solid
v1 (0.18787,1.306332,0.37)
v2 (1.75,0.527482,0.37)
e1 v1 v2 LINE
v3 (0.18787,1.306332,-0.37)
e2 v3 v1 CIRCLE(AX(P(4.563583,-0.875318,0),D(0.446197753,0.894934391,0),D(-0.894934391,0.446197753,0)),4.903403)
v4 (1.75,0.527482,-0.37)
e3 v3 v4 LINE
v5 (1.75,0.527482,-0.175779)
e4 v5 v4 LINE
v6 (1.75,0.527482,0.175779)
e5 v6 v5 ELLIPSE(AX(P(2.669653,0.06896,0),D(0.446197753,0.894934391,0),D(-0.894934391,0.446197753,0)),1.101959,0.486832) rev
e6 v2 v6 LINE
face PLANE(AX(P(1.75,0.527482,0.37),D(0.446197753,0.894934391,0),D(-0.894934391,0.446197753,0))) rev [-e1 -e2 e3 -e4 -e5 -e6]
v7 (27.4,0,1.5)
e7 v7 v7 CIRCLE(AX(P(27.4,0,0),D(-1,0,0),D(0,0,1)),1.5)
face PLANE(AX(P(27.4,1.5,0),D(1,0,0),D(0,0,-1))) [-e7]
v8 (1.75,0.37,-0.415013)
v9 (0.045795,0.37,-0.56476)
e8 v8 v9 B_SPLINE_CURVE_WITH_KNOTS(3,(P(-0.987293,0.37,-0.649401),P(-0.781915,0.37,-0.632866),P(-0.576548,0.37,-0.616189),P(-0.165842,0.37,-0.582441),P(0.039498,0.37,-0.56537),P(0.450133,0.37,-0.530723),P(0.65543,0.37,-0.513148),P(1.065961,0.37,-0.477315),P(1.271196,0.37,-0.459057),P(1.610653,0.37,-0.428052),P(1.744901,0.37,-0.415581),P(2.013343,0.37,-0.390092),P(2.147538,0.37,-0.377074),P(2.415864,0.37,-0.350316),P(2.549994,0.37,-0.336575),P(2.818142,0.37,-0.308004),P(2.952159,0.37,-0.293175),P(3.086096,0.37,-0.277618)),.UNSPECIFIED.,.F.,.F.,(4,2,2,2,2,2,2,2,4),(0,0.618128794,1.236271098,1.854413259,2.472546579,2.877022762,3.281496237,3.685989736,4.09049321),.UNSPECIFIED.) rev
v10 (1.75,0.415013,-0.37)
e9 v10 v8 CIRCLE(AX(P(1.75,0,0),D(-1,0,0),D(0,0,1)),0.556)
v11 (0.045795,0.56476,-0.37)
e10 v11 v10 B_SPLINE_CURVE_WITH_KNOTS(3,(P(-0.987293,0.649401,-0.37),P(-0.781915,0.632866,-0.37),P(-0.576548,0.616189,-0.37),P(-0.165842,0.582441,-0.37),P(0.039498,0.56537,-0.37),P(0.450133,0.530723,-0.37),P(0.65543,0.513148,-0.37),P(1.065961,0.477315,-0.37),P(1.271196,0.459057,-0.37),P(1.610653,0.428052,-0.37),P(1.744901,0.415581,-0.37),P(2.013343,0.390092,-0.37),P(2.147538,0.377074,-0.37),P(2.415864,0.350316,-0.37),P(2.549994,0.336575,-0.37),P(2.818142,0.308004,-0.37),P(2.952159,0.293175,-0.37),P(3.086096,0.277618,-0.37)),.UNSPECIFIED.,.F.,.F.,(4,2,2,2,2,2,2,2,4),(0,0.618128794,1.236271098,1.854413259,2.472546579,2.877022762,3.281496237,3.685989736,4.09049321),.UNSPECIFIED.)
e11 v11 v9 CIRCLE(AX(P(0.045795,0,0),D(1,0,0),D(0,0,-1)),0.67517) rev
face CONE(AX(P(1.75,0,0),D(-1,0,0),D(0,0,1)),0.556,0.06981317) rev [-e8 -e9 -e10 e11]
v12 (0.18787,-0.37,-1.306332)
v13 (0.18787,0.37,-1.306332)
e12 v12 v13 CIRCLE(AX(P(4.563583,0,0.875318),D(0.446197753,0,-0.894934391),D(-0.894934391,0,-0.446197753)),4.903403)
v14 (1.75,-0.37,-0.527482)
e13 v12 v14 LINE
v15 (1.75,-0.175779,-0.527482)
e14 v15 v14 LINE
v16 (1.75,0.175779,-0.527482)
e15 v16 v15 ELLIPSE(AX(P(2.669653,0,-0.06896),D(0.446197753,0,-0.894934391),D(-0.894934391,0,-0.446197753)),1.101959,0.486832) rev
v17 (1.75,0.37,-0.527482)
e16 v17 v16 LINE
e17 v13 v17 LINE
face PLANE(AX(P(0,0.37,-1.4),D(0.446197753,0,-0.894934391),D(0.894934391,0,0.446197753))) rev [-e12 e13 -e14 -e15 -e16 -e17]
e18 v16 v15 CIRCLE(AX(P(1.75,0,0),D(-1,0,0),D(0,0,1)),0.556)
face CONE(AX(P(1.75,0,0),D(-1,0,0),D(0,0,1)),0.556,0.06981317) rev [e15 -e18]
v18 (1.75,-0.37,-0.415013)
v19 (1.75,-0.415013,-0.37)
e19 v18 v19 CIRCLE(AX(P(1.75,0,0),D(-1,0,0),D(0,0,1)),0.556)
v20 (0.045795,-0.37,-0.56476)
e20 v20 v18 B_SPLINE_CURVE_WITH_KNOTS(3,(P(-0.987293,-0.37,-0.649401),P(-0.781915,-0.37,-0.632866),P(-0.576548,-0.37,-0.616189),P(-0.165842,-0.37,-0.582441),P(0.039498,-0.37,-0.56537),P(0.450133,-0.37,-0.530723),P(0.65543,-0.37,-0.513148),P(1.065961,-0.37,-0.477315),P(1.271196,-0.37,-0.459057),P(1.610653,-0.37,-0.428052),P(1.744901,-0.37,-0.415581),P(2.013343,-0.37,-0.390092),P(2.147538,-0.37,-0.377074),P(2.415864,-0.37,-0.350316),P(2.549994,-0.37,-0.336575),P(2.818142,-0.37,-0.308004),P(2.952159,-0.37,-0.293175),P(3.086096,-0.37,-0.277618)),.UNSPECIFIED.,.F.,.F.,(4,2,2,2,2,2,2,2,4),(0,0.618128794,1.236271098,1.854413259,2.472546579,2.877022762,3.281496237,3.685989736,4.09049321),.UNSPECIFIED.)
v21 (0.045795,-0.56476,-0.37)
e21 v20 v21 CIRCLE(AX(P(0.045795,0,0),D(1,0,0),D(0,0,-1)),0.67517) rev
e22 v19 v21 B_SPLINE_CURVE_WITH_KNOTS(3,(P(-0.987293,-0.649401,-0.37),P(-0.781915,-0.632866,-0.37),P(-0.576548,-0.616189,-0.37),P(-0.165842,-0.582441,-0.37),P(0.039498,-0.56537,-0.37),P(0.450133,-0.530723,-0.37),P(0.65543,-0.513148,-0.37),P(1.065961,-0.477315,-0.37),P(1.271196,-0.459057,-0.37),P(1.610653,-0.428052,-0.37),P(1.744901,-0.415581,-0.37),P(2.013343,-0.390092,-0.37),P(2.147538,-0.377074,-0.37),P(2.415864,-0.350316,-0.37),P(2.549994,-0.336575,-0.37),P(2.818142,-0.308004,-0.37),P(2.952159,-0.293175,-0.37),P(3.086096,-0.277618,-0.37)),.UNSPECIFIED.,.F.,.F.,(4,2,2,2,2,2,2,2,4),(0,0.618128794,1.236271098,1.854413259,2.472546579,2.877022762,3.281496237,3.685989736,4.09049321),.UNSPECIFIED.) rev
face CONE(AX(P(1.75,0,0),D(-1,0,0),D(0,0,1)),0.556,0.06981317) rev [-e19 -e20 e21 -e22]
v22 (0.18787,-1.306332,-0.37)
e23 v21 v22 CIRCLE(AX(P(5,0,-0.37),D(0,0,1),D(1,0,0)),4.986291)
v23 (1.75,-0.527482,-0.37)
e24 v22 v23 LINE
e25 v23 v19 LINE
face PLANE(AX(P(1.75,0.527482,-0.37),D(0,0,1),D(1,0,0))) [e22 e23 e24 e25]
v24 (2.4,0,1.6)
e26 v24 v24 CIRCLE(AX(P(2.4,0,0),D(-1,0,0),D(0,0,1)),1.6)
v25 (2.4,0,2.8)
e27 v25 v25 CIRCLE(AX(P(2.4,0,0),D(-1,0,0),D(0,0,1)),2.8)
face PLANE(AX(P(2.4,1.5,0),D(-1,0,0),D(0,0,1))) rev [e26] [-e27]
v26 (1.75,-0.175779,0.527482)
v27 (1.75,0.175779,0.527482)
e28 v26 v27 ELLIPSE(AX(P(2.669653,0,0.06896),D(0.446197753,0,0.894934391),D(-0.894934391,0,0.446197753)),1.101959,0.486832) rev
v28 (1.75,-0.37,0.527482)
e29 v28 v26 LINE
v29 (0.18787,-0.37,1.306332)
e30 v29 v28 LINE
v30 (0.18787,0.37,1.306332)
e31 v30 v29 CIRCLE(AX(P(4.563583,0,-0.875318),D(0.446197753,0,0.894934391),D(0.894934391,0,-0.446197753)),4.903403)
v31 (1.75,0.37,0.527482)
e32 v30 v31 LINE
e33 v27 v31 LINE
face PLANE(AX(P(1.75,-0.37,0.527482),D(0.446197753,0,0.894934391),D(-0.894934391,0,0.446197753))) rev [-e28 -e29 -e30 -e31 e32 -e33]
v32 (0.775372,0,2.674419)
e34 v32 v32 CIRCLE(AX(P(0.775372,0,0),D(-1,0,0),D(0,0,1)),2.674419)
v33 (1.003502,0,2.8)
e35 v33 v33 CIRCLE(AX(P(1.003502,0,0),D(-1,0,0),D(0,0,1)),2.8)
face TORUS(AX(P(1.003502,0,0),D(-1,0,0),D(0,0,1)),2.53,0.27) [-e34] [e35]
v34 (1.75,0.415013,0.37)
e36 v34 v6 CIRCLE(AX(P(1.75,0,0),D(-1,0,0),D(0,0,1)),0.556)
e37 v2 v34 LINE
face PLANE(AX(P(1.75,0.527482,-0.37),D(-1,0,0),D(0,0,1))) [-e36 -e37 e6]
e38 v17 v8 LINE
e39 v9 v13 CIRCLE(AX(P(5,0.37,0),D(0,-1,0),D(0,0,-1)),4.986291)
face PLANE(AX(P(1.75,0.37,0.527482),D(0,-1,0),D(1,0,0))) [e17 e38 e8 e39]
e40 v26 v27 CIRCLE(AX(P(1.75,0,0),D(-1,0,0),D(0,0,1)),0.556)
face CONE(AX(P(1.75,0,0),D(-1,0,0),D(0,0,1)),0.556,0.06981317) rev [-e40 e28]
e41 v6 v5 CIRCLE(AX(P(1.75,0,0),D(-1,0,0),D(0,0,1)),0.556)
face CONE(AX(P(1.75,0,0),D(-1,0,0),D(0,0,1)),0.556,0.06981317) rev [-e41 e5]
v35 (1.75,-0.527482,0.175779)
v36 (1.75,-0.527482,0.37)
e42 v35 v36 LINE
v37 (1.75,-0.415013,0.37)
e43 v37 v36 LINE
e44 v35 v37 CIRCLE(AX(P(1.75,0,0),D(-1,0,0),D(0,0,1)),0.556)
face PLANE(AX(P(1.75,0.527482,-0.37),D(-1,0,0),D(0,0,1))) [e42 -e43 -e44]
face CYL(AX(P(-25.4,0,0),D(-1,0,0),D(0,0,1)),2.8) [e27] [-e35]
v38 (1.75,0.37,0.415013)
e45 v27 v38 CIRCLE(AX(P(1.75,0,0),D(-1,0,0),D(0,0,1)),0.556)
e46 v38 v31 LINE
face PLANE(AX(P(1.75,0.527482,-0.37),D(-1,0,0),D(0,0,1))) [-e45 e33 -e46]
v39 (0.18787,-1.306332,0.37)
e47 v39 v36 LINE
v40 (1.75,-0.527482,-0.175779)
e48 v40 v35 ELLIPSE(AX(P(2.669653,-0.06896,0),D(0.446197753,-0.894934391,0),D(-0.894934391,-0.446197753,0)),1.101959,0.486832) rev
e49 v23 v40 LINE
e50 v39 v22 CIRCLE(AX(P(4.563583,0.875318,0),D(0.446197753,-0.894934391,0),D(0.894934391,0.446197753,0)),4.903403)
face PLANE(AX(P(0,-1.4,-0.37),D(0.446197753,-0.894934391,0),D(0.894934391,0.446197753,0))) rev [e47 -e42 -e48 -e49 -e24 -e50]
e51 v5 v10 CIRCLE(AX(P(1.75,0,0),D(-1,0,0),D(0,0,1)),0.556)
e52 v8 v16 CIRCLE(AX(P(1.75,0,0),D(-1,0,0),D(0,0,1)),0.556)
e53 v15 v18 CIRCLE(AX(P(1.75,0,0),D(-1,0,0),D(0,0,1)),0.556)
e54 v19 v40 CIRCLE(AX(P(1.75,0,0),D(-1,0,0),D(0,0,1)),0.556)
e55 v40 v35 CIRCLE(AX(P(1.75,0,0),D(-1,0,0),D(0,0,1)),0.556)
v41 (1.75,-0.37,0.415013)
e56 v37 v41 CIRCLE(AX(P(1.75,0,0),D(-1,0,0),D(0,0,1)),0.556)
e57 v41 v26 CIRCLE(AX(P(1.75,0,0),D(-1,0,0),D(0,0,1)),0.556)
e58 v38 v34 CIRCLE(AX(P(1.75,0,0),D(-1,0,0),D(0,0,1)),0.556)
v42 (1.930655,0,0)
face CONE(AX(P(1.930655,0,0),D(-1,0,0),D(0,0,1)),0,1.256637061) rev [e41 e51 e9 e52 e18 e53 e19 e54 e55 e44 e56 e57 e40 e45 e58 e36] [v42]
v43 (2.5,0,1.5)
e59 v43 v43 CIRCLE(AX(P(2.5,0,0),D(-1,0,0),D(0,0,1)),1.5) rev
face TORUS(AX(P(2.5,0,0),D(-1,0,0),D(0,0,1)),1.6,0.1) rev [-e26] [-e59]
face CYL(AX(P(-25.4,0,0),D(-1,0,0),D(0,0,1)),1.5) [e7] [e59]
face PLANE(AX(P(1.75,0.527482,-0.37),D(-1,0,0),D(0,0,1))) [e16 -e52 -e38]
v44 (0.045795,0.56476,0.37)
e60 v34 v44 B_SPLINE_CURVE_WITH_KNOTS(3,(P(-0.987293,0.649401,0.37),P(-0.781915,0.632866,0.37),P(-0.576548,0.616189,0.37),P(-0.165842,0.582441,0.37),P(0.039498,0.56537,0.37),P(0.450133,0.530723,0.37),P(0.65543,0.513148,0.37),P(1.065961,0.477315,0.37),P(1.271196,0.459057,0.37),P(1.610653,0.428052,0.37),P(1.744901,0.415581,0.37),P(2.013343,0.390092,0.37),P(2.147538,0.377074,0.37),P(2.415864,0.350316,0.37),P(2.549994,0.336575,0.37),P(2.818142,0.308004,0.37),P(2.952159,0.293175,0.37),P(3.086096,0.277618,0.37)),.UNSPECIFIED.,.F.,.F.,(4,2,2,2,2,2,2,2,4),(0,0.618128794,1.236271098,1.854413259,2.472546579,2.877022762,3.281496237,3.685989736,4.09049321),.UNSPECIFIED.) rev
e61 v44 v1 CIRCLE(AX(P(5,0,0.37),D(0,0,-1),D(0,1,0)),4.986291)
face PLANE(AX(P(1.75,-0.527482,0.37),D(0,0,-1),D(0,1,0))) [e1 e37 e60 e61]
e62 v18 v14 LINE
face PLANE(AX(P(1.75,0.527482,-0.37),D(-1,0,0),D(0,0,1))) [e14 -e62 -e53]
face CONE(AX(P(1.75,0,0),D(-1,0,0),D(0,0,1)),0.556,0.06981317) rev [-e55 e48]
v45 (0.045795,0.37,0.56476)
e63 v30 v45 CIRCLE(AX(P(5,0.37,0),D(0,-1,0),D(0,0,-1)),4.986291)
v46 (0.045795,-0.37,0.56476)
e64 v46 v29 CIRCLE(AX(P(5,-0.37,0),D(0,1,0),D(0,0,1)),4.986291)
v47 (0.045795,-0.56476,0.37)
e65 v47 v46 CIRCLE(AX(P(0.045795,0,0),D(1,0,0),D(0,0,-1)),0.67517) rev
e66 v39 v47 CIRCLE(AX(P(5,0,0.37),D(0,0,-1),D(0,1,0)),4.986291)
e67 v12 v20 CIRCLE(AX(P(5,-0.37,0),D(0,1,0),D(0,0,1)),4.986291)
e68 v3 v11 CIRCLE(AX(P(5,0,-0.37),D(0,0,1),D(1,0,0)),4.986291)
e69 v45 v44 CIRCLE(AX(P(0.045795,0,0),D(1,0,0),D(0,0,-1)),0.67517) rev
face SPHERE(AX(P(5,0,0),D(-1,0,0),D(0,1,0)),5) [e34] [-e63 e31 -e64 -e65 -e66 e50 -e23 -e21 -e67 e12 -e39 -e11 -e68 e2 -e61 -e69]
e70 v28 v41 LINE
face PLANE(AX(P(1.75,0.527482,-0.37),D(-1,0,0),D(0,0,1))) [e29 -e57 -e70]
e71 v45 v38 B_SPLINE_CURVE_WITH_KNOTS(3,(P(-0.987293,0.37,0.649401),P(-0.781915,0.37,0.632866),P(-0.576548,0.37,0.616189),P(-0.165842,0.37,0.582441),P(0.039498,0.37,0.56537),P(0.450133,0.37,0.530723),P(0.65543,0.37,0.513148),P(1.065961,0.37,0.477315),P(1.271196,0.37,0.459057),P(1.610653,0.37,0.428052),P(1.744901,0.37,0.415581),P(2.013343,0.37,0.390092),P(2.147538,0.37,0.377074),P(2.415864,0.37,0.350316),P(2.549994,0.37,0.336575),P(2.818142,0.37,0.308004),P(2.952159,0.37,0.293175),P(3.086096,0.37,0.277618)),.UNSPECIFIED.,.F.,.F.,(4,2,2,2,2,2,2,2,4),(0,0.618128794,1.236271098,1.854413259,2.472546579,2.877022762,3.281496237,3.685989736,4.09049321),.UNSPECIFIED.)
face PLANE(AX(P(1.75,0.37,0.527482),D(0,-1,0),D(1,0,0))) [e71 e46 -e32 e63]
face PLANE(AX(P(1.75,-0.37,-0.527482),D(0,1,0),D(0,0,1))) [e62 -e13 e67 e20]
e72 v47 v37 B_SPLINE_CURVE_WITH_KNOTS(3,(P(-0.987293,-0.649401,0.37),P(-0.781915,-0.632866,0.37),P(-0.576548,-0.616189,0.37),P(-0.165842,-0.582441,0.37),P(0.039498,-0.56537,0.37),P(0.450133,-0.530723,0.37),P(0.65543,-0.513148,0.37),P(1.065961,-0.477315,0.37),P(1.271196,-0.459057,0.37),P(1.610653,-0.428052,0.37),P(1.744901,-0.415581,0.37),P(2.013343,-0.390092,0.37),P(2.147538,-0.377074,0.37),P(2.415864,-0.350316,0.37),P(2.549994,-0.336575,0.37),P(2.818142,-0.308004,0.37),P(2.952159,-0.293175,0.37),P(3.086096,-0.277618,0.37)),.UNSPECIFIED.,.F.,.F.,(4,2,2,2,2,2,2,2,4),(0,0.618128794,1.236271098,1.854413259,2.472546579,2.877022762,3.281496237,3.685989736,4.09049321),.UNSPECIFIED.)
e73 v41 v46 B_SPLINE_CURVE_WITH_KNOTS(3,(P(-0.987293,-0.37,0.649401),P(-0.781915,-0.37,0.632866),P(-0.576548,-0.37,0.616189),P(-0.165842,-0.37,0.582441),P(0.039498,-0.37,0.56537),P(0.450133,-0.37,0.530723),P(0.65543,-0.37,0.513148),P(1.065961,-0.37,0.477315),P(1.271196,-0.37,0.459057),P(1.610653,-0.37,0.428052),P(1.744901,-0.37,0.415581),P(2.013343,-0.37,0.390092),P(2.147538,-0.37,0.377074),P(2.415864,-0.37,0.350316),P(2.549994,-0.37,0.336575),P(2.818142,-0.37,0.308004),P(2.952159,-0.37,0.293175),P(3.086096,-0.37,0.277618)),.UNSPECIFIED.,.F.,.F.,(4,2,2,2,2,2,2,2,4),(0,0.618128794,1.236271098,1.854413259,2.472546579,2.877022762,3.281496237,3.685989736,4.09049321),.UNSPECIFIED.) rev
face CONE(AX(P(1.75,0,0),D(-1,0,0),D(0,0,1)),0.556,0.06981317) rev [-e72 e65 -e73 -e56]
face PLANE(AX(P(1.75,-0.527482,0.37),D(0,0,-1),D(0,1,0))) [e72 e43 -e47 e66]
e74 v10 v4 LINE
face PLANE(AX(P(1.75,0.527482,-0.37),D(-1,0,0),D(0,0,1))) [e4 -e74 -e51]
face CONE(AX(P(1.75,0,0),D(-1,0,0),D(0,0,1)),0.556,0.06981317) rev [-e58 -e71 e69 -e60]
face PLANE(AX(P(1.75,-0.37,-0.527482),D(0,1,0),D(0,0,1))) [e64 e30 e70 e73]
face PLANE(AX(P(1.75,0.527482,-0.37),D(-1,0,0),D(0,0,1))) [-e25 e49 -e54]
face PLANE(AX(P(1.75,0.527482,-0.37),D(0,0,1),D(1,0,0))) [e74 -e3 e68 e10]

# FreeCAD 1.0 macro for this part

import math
import FreeCAD as App
import Part
import Sketcher

V = App.Vector
Q = App.Units.Quantity


def edges_at(feature, points):
    """Names of the edges that pass closest to the given points."""
    edges = feature.Shape.Edges
    near = lambda p: min(range(len(edges)), key=lambda i: edges[i].distToShape(Part.Vertex(*p))[0])
    return sorted({f"Edge{near(p) + 1}" for p in points})

doc = App.newDocument("Part")
body = doc.addObject("PartDesign::Body", "Body")

# Sketch on XY plane
sketch1 = doc.addObject("Sketcher::SketchObject", "Sketch")
body.addObject(sketch1)
sketch1.AttachmentSupport = (doc.XY_Plane, [""])
sketch1.MapMode = "FlatFace"
sketch1.addGeometry([
    Part.LineSegment(V(2.4, 1.5, 0), V(2.4, 2.8, 0)),  # 0
    Part.LineSegment(V(2.4, 2.8, 0), V(1, 2.8, 0)),  # 1
    Part.ArcOfCircle(Part.Circle(V(1, 2.53, 0), V(0, 0, 1), 0.27), math.radians(90), math.radians(148)),  # 2
    Part.ArcOfCircle(Part.Circle(V(5, 0, 0), V(0, 0, 1), 5), math.radians(148), math.radians(180)),  # 3
    Part.LineSegment(V(0, 0, 0), V(27.4, 0, 0)),  # 4
    Part.LineSegment(V(27.4, 0, 0), V(27.4, 1.5, 0)),  # 5
    Part.LineSegment(V(27.4, 1.5, 0), V(2.4, 1.5, 0)),  # 6
], False)
sketch1.addConstraint([
    Sketcher.Constraint("Coincident", 0, 2, 1, 1),
    Sketcher.Constraint("Tangent", 1, 2, 2, 1),
    Sketcher.Constraint("Tangent", 2, 2, 3, 1),
    Sketcher.Constraint("Coincident", 3, 2, 4, 1),
    Sketcher.Constraint("Coincident", 4, 2, 5, 1),
    Sketcher.Constraint("Coincident", 5, 2, 6, 1),
    Sketcher.Constraint("Coincident", 6, 2, 0, 1),
    Sketcher.Constraint("Vertical", 0),
    Sketcher.Constraint("Horizontal", 1),
    Sketcher.Constraint("Horizontal", 4),
    Sketcher.Constraint("Vertical", 5),
    Sketcher.Constraint("Horizontal", 6),
    Sketcher.Constraint("Coincident", 3, 2, -1, 1),
    Sketcher.Constraint("PointOnObject", 3, 3, -1),
    Sketcher.Constraint("Radius", 3, Q("5 mm")),
    Sketcher.Constraint("DistanceX", 6, 2, 6, 1, Q("25 mm")),
    Sketcher.Constraint("Radius", 2, Q("0.27 mm")),
    Sketcher.Constraint("DistanceX", 4, 1, 4, 2, Q("27.4 mm")),
    Sketcher.Constraint("DistanceY", 0, 1, 0, 2, Q("1.3 mm")),
    Sketcher.Constraint("DistanceY", 5, 1, 5, 2, Q("1.5 mm")),
])
revolution = doc.addObject("PartDesign::Revolution", "Revolution")
body.addObject(revolution)
revolution.Profile = sketch1
revolution.ReferenceAxis = (sketch1, ["H_Axis"])
revolution.Angle = 360
doc.recompute()

fillet = doc.addObject("PartDesign::Fillet", "Fillet")
body.addObject(fillet)
fillet.Base = (revolution, edges_at(revolution, [(2.4, 0, -1.5)]))
fillet.Radius = 0.1

# Sketch on YZ plane
sketch2 = doc.addObject("Sketcher::SketchObject", "Sketch001")
body.addObject(sketch2)
sketch2.AttachmentSupport = (doc.YZ_Plane, [""])
sketch2.MapMode = "FlatFace"
sketch2.addGeometry([
    Part.LineSegment(V(-1.4, 0.4, 0), V(-1.4, -0.4, 0)),
    Part.LineSegment(V(-1.4, -0.4, 0), V(1.4, -0.4, 0)),
    Part.LineSegment(V(1.4, -0.4, 0), V(1.4, 0.4, 0)),
    Part.LineSegment(V(1.4, 0.4, 0), V(-1.4, 0.4, 0)),
], False)
sketch2.addConstraint([
    Sketcher.Constraint("Coincident", 0, 2, 1, 1),
    Sketcher.Constraint("Coincident", 1, 2, 2, 1),
    Sketcher.Constraint("Coincident", 2, 2, 3, 1),
    Sketcher.Constraint("Coincident", 3, 2, 0, 1),
    Sketcher.Constraint("Vertical", 0),
    Sketcher.Constraint("Horizontal", 1),
    Sketcher.Constraint("Vertical", 2),
    Sketcher.Constraint("Horizontal", 3),
    Sketcher.Constraint("Symmetric", 0, 2, 2, 2, -1, 1),
    Sketcher.Constraint("DistanceX", 1, 1, 1, 2, Q("2.8 mm")),
    Sketcher.Constraint("DistanceY", 0, 2, 0, 1, Q("0.74 mm")),
])

# Sketch on YZ plane
sketch3 = doc.addObject("Sketcher::SketchObject", "Sketch002")
body.addObject(sketch3)
sketch3.AttachmentSupport = (doc.YZ_Plane, [""])
sketch3.MapMode = "FlatFace"
sketch3.AttachmentOffset = App.Placement(V(0, 0, 1.75), App.Rotation())
sketch3.addGeometry([
    Part.LineSegment(V(-0.5, 0.4, 0), V(-0.5, -0.4, 0)),
    Part.LineSegment(V(-0.5, -0.4, 0), V(0.5, -0.4, 0)),
    Part.LineSegment(V(0.5, -0.4, 0), V(0.5, 0.4, 0)),
    Part.LineSegment(V(0.5, 0.4, 0), V(-0.5, 0.4, 0)),
], False)
sketch3.addConstraint([
    Sketcher.Constraint("Coincident", 0, 2, 1, 1),
    Sketcher.Constraint("Coincident", 1, 2, 2, 1),
    Sketcher.Constraint("Coincident", 2, 2, 3, 1),
    Sketcher.Constraint("Coincident", 3, 2, 0, 1),
    Sketcher.Constraint("Vertical", 0),
    Sketcher.Constraint("Horizontal", 1),
    Sketcher.Constraint("Vertical", 2),
    Sketcher.Constraint("Horizontal", 3),
    Sketcher.Constraint("Symmetric", 0, 2, 2, 2, -1, 1),
    Sketcher.Constraint("DistanceY", 0, 2, 0, 1, Q("0.74 mm")),
    Sketcher.Constraint("DistanceX", 1, 1, 1, 2, Q("1.054965 mm")),
])

subtractiveloft = doc.addObject("PartDesign::SubtractiveLoft", "SubtractiveLoft")
body.addObject(subtractiveloft)
subtractiveloft.Profile = sketch2
subtractiveloft.Sections = [sketch3]
doc.recompute()

polarpattern = doc.addObject("PartDesign::PolarPattern", "PolarPattern")
body.addObject(polarpattern)
polarpattern.Originals = [subtractiveloft]
polarpattern.Axis = (doc.X_Axis, [""])
polarpattern.Angle = 90
polarpattern.Occurrences = 2
body.Tip = polarpattern

# Sketch on XY plane
sketch4 = doc.addObject("Sketcher::SketchObject", "Sketch003")
body.addObject(sketch4)
sketch4.AttachmentSupport = (doc.XY_Plane, [""])
sketch4.MapMode = "FlatFace"
sketch4.addGeometry([
    Part.LineSegment(V(0, 0.7, 0), V(0, 0, 0)),
    Part.LineSegment(V(0, 0, 0), V(1.9, 0, 0)),
    Part.LineSegment(V(1.9, 0, 0), V(1.8, 0.6, 0)),
    Part.LineSegment(V(1.8, 0.6, 0), V(0, 0.7, 0)),
], False)
sketch4.addConstraint([
    Sketcher.Constraint("Coincident", 0, 2, 1, 1),
    Sketcher.Constraint("Coincident", 1, 2, 2, 1),
    Sketcher.Constraint("Coincident", 2, 2, 3, 1),
    Sketcher.Constraint("Coincident", 3, 2, 0, 1),
    Sketcher.Constraint("Vertical", 0),
    Sketcher.Constraint("Horizontal", 1),
    Sketcher.Constraint("Coincident", 0, 2, -1, 1),
    Sketcher.Constraint("Angle", 2, Q("108 deg")),
    Sketcher.Constraint("Angle", 3, Q("176 deg")),
    Sketcher.Constraint("DistanceX", -1, 1, 2, 2, Q("1.75 mm")),
    Sketcher.Constraint("DistanceY", -1, 1, 2, 2, Q("0.556 mm")),
])
groove = doc.addObject("PartDesign::Groove", "Groove")
body.addObject(groove)
groove.Profile = sketch4
groove.ReferenceAxis = (sketch4, ["H_Axis"])
groove.Angle = 360

doc.recompute()
